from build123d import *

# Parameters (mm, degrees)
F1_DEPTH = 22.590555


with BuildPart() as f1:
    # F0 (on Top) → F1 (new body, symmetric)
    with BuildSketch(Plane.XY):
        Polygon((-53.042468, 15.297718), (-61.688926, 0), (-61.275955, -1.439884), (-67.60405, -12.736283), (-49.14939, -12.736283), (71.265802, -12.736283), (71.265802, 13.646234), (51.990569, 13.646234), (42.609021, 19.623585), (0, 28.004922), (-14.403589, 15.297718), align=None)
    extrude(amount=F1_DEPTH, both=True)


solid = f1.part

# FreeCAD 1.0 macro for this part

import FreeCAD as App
import Part
import Sketcher

V = App.Vector
Q = App.Units.Quantity

doc = App.newDocument("Part")
params = doc.addObject("Spreadsheet::Sheet", "Params")
for row, (alias, value) in enumerate([
    ("pad1_length", "45.18111 mm"),
], start=1):
    params.set(f"A{row}", alias)
    params.set(f"B{row}", "=" + value)
    params.setAlias(f"B{row}", alias)

body = doc.addObject("PartDesign::Body", "Body")

# Sketch on XY plane
sketch1 = doc.addObject("Sketcher::SketchObject", "Sketch")
body.addObject(sketch1)
sketch1.AttachmentSupport = (doc.XY_Plane, [""])
sketch1.MapMode = "FlatFace"
sketch1.addGeometry([
    Part.LineSegment(V(-53.042468, 15.297718, 0), V(-61.688926, 0, 0)),  # 0
    Part.LineSegment(V(-61.688926, 0, 0), V(-61.275955, -1.439884, 0)),  # 1
    Part.LineSegment(V(-61.275955, -1.439884, 0), V(-67.60405, -12.736283, 0)),  # 2
    Part.LineSegment(V(-67.60405, -12.736283, 0), V(71.265802, -12.736283, 0)),  # 3
    Part.LineSegment(V(71.265802, -12.736283, 0), V(71.265802, 13.646234, 0)),  # 4
    Part.LineSegment(V(71.265802, 13.646234, 0), V(51.990569, 13.646234, 0)),  # 5
    Part.LineSegment(V(51.990569, 13.646234, 0), V(42.609021, 19.623585, 0)),  # 6
    Part.LineSegment(V(42.609021, 19.623585, 0), V(0, 28.004922, 0)),  # 7
    Part.LineSegment(V(0, 28.004922, 0), V(-14.403589, 15.297718, 0)),  # 8
    Part.LineSegment(V(-14.403589, 15.297718, 0), V(-53.042468, 15.297718, 0)),  # 9
], False)
sketch1.addConstraint([
    Sketcher.Constraint("Coincident", 0, 2, 1, 1),
    Sketcher.Constraint("Coincident", 1, 2, 2, 1),
    Sketcher.Constraint("Coincident", 2, 2, 3, 1),
    Sketcher.Constraint("Coincident", 3, 2, 4, 1),
    Sketcher.Constraint("Coincident", 4, 2, 5, 1),
    Sketcher.Constraint("Coincident", 5, 2, 6, 1),
    Sketcher.Constraint("Coincident", 6, 2, 7, 1),
    Sketcher.Constraint("Coincident", 7, 2, 8, 1),
    Sketcher.Constraint("Coincident", 8, 2, 9, 1),
    Sketcher.Constraint("Coincident", 9, 2, 0, 1),
    Sketcher.Constraint("Horizontal", 3),
    Sketcher.Constraint("Vertical", 4),
    Sketcher.Constraint("Horizontal", 5),
    Sketcher.Constraint("Horizontal", 9),
    Sketcher.Constraint("PointOnObject", 0, 2, -1),
    Sketcher.Constraint("PointOnObject", 7, 2, -2),
    Sketcher.Constraint("DistanceY", 2, 2, 8, 2, Q("28.034001 mm")),
    Sketcher.Constraint("DistanceX", 3, 1, 3, 2, Q("138.869852 mm")),
    Sketcher.Constraint("DistanceX", 9, 2, 9, 1, Q("38.638879 mm")),
    Sketcher.Constraint("DistanceX", -1, 1, 3, 2, Q("71.265802 mm")),
    Sketcher.Constraint("DistanceY", 2, 2, 1, 2, Q("11.296399 mm")),
    Sketcher.Constraint("DistanceX", 5, 2, 5, 1, Q("19.275233 mm")),
    Sketcher.Constraint("DistanceY", 4, 1, 4, 2, Q("26.382517 mm")),
    Sketcher.Constraint("DistanceX", -1, 1, 6, 2, Q("42.609021 mm")),
    Sketcher.Constraint("DistanceX", 8, 2, -1, 1, Q("14.403589 mm")),
    Sketcher.Constraint("DistanceX", 0, 2, 1, 2, Q("0.412971 mm")),
    Sketcher.Constraint("DistanceY", 5, 2, 6, 2, Q("5.977351 mm")),
    Sketcher.Constraint("DistanceY", 5, 2, 7, 2, Q("14.358688 mm")),
    Sketcher.Constraint("DistanceX", 0, 2, 9, 2, Q("8.646458 mm")),
    Sketcher.Constraint("Distance", 0, Q("17.572177 mm")),
])
pad1 = doc.addObject("PartDesign::Pad", "Pad")
body.addObject(pad1)
pad1.Profile = sketch1
pad1.setExpression("Length", "Params.pad1_length")
pad1.Midplane = True

doc.recompute()
